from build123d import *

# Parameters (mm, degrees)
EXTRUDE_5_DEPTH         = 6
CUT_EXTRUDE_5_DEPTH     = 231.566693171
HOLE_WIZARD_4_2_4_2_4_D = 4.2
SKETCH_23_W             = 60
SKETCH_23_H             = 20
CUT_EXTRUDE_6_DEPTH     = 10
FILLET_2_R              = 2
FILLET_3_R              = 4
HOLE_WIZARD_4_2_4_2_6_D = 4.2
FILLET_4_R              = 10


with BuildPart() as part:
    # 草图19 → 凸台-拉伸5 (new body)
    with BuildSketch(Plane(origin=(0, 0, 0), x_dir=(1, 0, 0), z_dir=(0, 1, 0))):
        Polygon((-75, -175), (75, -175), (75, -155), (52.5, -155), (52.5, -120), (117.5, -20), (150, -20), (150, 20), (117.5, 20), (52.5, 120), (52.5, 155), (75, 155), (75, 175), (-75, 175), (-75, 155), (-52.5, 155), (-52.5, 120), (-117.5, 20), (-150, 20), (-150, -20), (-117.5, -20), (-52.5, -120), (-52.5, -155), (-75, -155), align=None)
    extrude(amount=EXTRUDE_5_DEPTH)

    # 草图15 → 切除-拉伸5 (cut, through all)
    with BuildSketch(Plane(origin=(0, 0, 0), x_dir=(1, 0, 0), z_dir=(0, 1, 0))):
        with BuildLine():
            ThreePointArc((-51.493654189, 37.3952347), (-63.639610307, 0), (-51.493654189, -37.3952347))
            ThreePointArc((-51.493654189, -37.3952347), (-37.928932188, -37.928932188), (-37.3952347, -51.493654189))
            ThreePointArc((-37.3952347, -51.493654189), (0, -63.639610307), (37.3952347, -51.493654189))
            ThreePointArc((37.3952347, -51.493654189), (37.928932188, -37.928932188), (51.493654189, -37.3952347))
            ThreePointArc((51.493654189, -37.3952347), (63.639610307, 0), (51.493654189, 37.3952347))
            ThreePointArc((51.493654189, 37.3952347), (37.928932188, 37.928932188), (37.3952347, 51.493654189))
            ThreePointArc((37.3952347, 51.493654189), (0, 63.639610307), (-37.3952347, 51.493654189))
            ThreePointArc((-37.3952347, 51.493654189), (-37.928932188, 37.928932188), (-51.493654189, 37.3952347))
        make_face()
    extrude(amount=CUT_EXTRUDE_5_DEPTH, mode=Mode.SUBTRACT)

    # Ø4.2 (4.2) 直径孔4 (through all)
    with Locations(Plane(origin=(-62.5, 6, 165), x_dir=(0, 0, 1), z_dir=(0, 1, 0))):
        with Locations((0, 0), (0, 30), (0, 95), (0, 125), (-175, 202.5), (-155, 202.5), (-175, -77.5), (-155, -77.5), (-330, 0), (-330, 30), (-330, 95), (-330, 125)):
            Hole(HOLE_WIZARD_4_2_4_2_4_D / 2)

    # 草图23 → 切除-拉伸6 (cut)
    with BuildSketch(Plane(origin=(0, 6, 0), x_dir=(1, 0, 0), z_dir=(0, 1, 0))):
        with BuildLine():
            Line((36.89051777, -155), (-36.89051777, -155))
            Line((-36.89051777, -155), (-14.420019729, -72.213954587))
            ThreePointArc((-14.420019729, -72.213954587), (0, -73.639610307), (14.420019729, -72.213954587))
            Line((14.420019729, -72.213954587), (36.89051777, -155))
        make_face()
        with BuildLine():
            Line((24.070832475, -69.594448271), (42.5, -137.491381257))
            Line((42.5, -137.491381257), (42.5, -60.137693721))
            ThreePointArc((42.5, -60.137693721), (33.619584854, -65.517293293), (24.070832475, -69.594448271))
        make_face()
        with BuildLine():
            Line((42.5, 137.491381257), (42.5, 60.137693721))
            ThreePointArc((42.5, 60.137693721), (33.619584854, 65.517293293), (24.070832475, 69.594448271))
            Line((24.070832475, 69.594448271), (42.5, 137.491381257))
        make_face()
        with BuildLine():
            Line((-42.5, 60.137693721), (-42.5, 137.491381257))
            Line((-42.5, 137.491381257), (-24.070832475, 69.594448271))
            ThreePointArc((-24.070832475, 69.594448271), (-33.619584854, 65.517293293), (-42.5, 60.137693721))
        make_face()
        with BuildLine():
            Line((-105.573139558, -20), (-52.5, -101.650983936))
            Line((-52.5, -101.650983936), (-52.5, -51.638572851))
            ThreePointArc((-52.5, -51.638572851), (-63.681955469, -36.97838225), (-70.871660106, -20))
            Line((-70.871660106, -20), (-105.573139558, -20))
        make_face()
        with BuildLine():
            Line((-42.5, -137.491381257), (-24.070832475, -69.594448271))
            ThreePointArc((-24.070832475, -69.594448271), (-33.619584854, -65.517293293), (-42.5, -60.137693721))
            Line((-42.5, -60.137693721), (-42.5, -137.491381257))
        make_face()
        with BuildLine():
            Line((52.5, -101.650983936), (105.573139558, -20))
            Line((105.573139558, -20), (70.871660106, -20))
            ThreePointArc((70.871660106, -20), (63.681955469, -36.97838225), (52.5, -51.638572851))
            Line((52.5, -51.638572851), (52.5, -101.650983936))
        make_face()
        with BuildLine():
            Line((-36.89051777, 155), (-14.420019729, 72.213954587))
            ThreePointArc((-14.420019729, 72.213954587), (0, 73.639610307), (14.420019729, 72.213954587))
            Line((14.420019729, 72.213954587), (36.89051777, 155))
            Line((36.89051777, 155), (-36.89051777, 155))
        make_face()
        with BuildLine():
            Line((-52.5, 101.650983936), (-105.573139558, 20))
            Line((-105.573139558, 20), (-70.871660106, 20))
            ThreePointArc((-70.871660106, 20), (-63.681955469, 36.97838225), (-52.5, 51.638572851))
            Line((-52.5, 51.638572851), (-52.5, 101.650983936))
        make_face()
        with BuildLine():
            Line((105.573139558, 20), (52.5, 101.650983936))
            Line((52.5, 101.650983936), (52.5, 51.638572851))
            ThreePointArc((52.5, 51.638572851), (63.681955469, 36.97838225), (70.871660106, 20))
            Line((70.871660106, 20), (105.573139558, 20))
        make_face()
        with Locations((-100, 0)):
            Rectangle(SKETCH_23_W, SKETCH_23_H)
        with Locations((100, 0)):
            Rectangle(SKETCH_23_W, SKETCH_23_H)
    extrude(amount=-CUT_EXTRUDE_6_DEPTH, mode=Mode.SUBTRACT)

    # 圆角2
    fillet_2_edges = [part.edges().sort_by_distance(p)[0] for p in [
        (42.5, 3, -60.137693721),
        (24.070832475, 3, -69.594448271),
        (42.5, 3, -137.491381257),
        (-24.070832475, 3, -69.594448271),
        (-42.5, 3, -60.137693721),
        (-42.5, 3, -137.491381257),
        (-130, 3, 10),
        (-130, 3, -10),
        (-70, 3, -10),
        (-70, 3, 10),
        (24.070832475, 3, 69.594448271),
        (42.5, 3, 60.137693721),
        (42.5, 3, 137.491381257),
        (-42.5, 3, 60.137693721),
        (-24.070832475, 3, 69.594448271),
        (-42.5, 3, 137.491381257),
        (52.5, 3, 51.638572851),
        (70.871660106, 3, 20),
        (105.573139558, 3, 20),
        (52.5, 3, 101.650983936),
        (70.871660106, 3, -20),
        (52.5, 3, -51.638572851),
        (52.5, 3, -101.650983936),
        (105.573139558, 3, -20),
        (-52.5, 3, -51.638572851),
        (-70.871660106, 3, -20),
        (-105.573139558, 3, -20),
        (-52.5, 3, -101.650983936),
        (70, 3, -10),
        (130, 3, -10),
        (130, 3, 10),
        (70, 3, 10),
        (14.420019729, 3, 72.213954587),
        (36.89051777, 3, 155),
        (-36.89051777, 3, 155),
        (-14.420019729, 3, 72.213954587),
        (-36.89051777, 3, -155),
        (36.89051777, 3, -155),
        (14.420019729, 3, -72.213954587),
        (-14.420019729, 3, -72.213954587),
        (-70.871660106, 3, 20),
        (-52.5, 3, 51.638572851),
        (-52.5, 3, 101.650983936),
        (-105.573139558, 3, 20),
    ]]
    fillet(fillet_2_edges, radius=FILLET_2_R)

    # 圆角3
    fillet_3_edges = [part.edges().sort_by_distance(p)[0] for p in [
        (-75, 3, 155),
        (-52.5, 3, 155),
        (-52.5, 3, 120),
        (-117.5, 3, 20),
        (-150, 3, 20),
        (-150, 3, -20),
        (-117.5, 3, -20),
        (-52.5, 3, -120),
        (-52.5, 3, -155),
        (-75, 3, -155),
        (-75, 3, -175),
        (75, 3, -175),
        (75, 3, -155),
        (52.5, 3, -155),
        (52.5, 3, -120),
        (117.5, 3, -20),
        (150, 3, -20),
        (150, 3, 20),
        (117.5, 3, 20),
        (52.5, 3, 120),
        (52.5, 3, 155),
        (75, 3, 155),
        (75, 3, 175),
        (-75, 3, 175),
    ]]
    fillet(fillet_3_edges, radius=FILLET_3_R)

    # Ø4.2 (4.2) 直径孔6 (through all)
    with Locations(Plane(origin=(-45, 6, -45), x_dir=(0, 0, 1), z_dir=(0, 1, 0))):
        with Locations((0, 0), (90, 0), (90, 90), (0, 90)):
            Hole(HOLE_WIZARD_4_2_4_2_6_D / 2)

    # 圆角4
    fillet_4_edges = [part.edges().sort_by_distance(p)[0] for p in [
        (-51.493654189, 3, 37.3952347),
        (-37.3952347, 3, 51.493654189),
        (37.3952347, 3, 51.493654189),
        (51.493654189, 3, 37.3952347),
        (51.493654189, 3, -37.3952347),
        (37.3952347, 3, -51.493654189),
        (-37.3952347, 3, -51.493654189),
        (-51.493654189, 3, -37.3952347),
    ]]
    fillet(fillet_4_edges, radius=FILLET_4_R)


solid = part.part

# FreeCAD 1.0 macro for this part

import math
import FreeCAD as App
import Part
import Sketcher

V = App.Vector


def edges_at(feature, points):
    """Names of the edges that pass closest to the given points."""
    edges = feature.Shape.Edges
    near = lambda p: min(range(len(edges)), key=lambda i: edges[i].distToShape(Part.Vertex(*p))[0])
    return sorted({f"Edge{near(p) + 1}" for p in points})


def add_polygon(sketch, points):
    """Adds a closed chain of lines whose ends are joined by coincident constraints."""
    first, n = sketch.GeometryCount, len(points)
    for a, b in zip(points, points[1:] + points[:1]):
        sketch.addGeometry(Part.LineSegment(App.Vector(*a, 0), App.Vector(*b, 0)), False)
    for i in range(n):
        sketch.addConstraint(Sketcher.Constraint("Coincident", first + i, 2, first + (i + 1) % n, 1))

doc = App.newDocument("Part")
body = doc.addObject("PartDesign::Body", "Body")

sketch1 = body.newObject("Sketcher::SketchObject", "Sketch")
sketch1.AttachmentSupport = (doc.getObject("XZ_Plane"), [""])
sketch1.MapMode = "FlatFace"
add_polygon(sketch1, [(-75, 175), (75, 175), (75, 155), (52, 155), (52, 120), (118, 20), (150, 20), (150, -20), (118, -20), (52, -120), (52, -155), (75, -155), (75, -175), (-75, -175), (-75, -155), (-52, -155), (-52, -120), (-118, -20), (-150, -20), (-150, 20), (-118, 20), (-52, 120), (-52, 155), (-75, 155)])
sketch1.addConstraint([
    Sketcher.Constraint("Horizontal", 0),
    Sketcher.Constraint("Vertical", 1),
    Sketcher.Constraint("Horizontal", 2),
    Sketcher.Constraint("Vertical", 3),
    Sketcher.Constraint("Horizontal", 5),
    Sketcher.Constraint("Vertical", 6),
    Sketcher.Constraint("Horizontal", 7),
    Sketcher.Constraint("Vertical", 9),
    Sketcher.Constraint("Horizontal", 10),
    Sketcher.Constraint("Vertical", 11),
    Sketcher.Constraint("Horizontal", 12),
    Sketcher.Constraint("Vertical", 13),
    Sketcher.Constraint("Horizontal", 14),
    Sketcher.Constraint("Vertical", 15),
    Sketcher.Constraint("Horizontal", 17),
    Sketcher.Constraint("Vertical", 18),
    Sketcher.Constraint("Horizontal", 19),
    Sketcher.Constraint("Vertical", 21),
    Sketcher.Constraint("Horizontal", 22),
    Sketcher.Constraint("Vertical", 23),
    Sketcher.Constraint("Symmetric", 0, 2, 12, 2, -1, 1),
    Sketcher.Constraint("Symmetric", 2, 2, 14, 2, -1, 1),
    Sketcher.Constraint("Symmetric", 4, 2, 16, 2, -1, 1),
    Sketcher.Constraint("Symmetric", 6, 2, 18, 2, -1, 1),
    Sketcher.Constraint("Symmetric", 8, 2, 20, 2, -1, 1),
    Sketcher.Constraint("Symmetric", 10, 2, 22, 2, -1, 1),
    Sketcher.Constraint("Symmetric", 10, 2, 13, 2, -2),
    Sketcher.Constraint("Symmetric", 8, 2, 15, 2, -2),
    Sketcher.Constraint("Symmetric", 7, 2, 16, 2, -2),
    Sketcher.Constraint("Parallel", 4, 16),
    Sketcher.Constraint("Parallel", 8, 20),
    Sketcher.Constraint("DistanceX", 0, 1, 0, 2, 150.0),
    Sketcher.Constraint("DistanceY", 1, 2, 1, 1, 20.0),
    Sketcher.Constraint("DistanceY", 3, 2, 3, 1, 35.0),
    Sketcher.Constraint("DistanceY", 6, 2, 6, 1, 40.0),
    Sketcher.Constraint("DistanceX", 2, 2, 2, 1, 22.5),
    Sketcher.Constraint("DistanceX", 5, 1, 5, 2, 32.5),
    Sketcher.Constraint("DistanceY", -1, 1, 0, 2, 175.0),
    Sketcher.Constraint("DistanceX", -1, 1, 5, 2, 150.0),
])
pad1 = body.newObject("PartDesign::Pad", "Pad")
pad1.Profile = sketch1
pad1.Length = 6
pad1.Reversed = True

sketch2 = body.newObject("Sketcher::SketchObject", "Sketch001")
sketch2.AttachmentSupport = (doc.getObject("XZ_Plane"), [""])
sketch2.MapMode = "FlatFace"
sketch2.addGeometry([
    Part.ArcOfCircle(Part.Circle(V(0, 0, 0), V(0, 0, 1), 64), math.radians(144), math.radians(216)),
    Part.ArcOfCircle(Part.Circle(V(-45, 45, 0), V(0, 0, 1), 10), math.radians(-130), math.radians(40)),
    Part.ArcOfCircle(Part.Circle(V(0, 0, 0), V(0, 0, 1), 64), math.radians(54), math.radians(126)),
    Part.ArcOfCircle(Part.Circle(V(45, 45, 0), V(0, 0, 1), 10), math.radians(140), math.radians(310)),
    Part.ArcOfCircle(Part.Circle(V(0, 0, 0), V(0, 0, 1), 64), math.radians(-36), math.radians(36)),
    Part.ArcOfCircle(Part.Circle(V(45, -45, 0), V(0, 0, 1), 10), math.radians(50), math.radians(220)),
    Part.ArcOfCircle(Part.Circle(V(0, 0, 0), V(0, 0, 1), 64), math.radians(-126), math.radians(-54)),
    Part.ArcOfCircle(Part.Circle(V(-45, -45, 0), V(0, 0, 1), 10), math.radians(-40), math.radians(130)),
], False)
sketch2.addConstraint([
    Sketcher.Constraint("Coincident", 0, 1, 1, 1),
    Sketcher.Constraint("Coincident", 1, 2, 2, 2),
    Sketcher.Constraint("Coincident", 2, 1, 3, 1),
    Sketcher.Constraint("Coincident", 3, 2, 4, 2),
    Sketcher.Constraint("Coincident", 4, 1, 5, 1),
    Sketcher.Constraint("Coincident", 5, 2, 6, 2),
    Sketcher.Constraint("Coincident", 6, 1, 7, 1),
    Sketcher.Constraint("Coincident", 7, 2, 0, 2),
    Sketcher.Constraint("Coincident", 0, 3, -1, 1),
    Sketcher.Constraint("Coincident", 2, 3, -1, 1),
    Sketcher.Constraint("Coincident", 4, 3, -1, 1),
    Sketcher.Constraint("Coincident", 6, 3, -1, 1),
    Sketcher.Constraint("Equal", 0, 2),
    Sketcher.Constraint("Equal", 1, 3),
    Sketcher.Constraint("Equal", 2, 4),
    Sketcher.Constraint("Equal", 3, 5),
    Sketcher.Constraint("Equal", 4, 6),
    Sketcher.Constraint("Equal", 5, 7),
    Sketcher.Constraint("Symmetric", 1, 3, 5, 3, -1, 1),
    Sketcher.Constraint("Symmetric", 3, 3, 7, 3, -1, 1),
    Sketcher.Constraint("Symmetric", 1, 3, 3, 3, -2),
    Sketcher.Constraint("Radius", 1, 10.0),
    Sketcher.Constraint("DistanceX", 1, 3, -1, 1, 45.0),
    Sketcher.Constraint("DistanceY", -1, 1, 1, 3, 45.0),
    Sketcher.Constraint("Radius", 0, 63.63961),
])
pocket1 = body.newObject("PartDesign::Pocket", "Pocket")
pocket1.Profile = sketch2
pocket1.Type = "ThroughAll"

sketch3 = body.newObject("Sketcher::SketchObject", "Sketch002")
sketch3.AttachmentSupport = (doc.getObject("XZ_Plane"), [""])
sketch3.MapMode = "FlatFace"
sketch3.AttachmentOffset = App.Placement(V(0, 0, -6), App.Rotation())
sketch3.addGeometry([
    Part.Circle(V(-62.5, 165, 0), V(0, 0, 1), 2.1),
    Part.Circle(V(-32.5, 165, 0), V(0, 0, 1), 2.1),
    Part.Circle(V(32.5, 165, 0), V(0, 0, 1), 2.1),
    Part.Circle(V(62.5, 165, 0), V(0, 0, 1), 2.1),
    Part.Circle(V(140, -10, 0), V(0, 0, 1), 2.1),
    Part.Circle(V(140, 10, 0), V(0, 0, 1), 2.1),
    Part.Circle(V(-140, -10, 0), V(0, 0, 1), 2.1),
    Part.Circle(V(-140, 10, 0), V(0, 0, 1), 2.1),
    Part.Circle(V(-62.5, -165, 0), V(0, 0, 1), 2.1),
    Part.Circle(V(-32.5, -165, 0), V(0, 0, 1), 2.1),
    Part.Circle(V(32.5, -165, 0), V(0, 0, 1), 2.1),
    Part.Circle(V(62.5, -165, 0), V(0, 0, 1), 2.1),
], False)
sketch3.addConstraint([
    Sketcher.Constraint("Equal", 0, 1),
    Sketcher.Constraint("Equal", 1, 2),
    Sketcher.Constraint("Equal", 2, 3),
    Sketcher.Constraint("Equal", 3, 4),
    Sketcher.Constraint("Equal", 4, 5),
    Sketcher.Constraint("Equal", 5, 6),
    Sketcher.Constraint("Equal", 6, 7),
    Sketcher.Constraint("Equal", 7, 8),
    Sketcher.Constraint("Equal", 8, 9),
    Sketcher.Constraint("Equal", 9, 10),
    Sketcher.Constraint("Equal", 10, 11),
    Sketcher.Constraint("Symmetric", 5, 3, 6, 3, -1, 1),
    Sketcher.Constraint("Symmetric", 4, 3, 7, 3, -1, 1),
    Sketcher.Constraint("Symmetric", 3, 3, 8, 3, -1, 1),
    Sketcher.Constraint("Symmetric", 2, 3, 9, 3, -1, 1),
    Sketcher.Constraint("Symmetric", 1, 3, 10, 3, -1, 1),
    Sketcher.Constraint("Symmetric", 0, 3, 11, 3, -1, 1),
    Sketcher.Constraint("Symmetric", 1, 3, 2, 3, -2),
    Sketcher.Constraint("Symmetric", 0, 3, 3, 3, -2),
    Sketcher.Constraint("Symmetric", 4, 3, 6, 3, -2),
    Sketcher.Constraint("Horizontal", 0, 3, 1, 3),
    Sketcher.Constraint("Diameter", 0, 4.2),
    Sketcher.Constraint("DistanceY", -1, 1, 0, 3, 165.0),
    Sketcher.Constraint("DistanceX", -1, 1, 4, 3, 140.0),
    Sketcher.Constraint("DistanceY", 4, 3, -1, 1, 10.0),
    Sketcher.Constraint("DistanceX", 0, 3, 1, 3, 30.0),
    Sketcher.Constraint("DistanceX", 1, 3, 2, 3, 65.0),
])
doc.recompute()
hole = body.newObject("PartDesign::Hole", "Hole")
hole.Profile = sketch3
hole.ThreadType = "None"
hole.Diameter = 4.2
hole.DepthType = "ThroughAll"
hole.Reversed = True

sketch4 = body.newObject("Sketcher::SketchObject", "Sketch003")
sketch4.AttachmentSupport = (doc.getObject("XZ_Plane"), [""])
sketch4.MapMode = "FlatFace"
sketch4.AttachmentOffset = App.Placement(V(0, 0, -6), App.Rotation())
sketch4.addGeometry(Part.LineSegment(V(-37, 155, 0), V(37, 155, 0)), False)
sketch4.addGeometry(Part.LineSegment(V(37, 155, 0), V(14, 72, 0)), False)
sketch4.addGeometry(Part.ArcOfCircle(Part.Circle(V(0, 0, 0), V(0, 0, 1), 74), math.radians(79), math.radians(101)), False)
sketch4.addGeometry(Part.LineSegment(V(-14, 72, 0), V(-37, 155, 0)), False)
sketch4.addGeometry(Part.LineSegment(V(24, 70, 0), V(42, 137, 0)), False)
sketch4.addGeometry(Part.LineSegment(V(42, 137, 0), V(42, 60, 0)), False)
sketch4.addGeometry(Part.ArcOfCircle(Part.Circle(V(0, 0, 0), V(0, 0, 1), 74), math.radians(54.75), math.radians(70.92)), False)
sketch4.addGeometry(Part.LineSegment(V(42, -60, 0), V(42, -137, 0)), False)
sketch4.addGeometry(Part.LineSegment(V(42, -137, 0), V(24, -70, 0)), False)
sketch4.addGeometry(Part.ArcOfCircle(Part.Circle(V(0, 0, 0), V(0, 0, 1), 74), math.radians(-70.92), math.radians(-54.75)), False)
sketch4.addGeometry(Part.LineSegment(V(-42, -137, 0), V(-42, -60, 0)), False)
sketch4.addGeometry(Part.ArcOfCircle(Part.Circle(V(0, 0, 0), V(0, 0, 1), 74), math.radians(-125.25), math.radians(-109.08)), False)
sketch4.addGeometry(Part.LineSegment(V(-24, -70, 0), V(-42, -137, 0)), False)
sketch4.addGeometry(Part.LineSegment(V(-106, 20, 0), V(-52, 102, 0)), False)
sketch4.addGeometry(Part.LineSegment(V(-52, 102, 0), V(-52, 52, 0)), False)
sketch4.addGeometry(Part.ArcOfCircle(Part.Circle(V(0, 0, 0), V(0, 0, 1), 74), math.radians(135), math.radians(164)), False)
sketch4.addGeometry(Part.LineSegment(V(-71, 20, 0), V(-106, 20, 0)), False)
sketch4.addGeometry(Part.LineSegment(V(-42, 137, 0), V(-24, 70, 0)), False)
sketch4.addGeometry(Part.ArcOfCircle(Part.Circle(V(0, 0, 0), V(0, 0, 1), 74), math.radians(109.08), math.radians(125.25)), False)
sketch4.addGeometry(Part.LineSegment(V(-42, 60, 0), V(-42, 137, 0)), False)
sketch4.addGeometry(Part.LineSegment(V(52, 102, 0), V(106, 20, 0)), False)
sketch4.addGeometry(Part.LineSegment(V(106, 20, 0), V(71, 20, 0)), False)
sketch4.addGeometry(Part.ArcOfCircle(Part.Circle(V(0, 0, 0), V(0, 0, 1), 74), math.radians(16), math.radians(45)), False)
sketch4.addGeometry(Part.LineSegment(V(52, 52, 0), V(52, 102, 0)), False)
sketch4.addGeometry(Part.LineSegment(V(-37, -155, 0), V(-14, -72, 0)), False)
sketch4.addGeometry(Part.ArcOfCircle(Part.Circle(V(0, 0, 0), V(0, 0, 1), 74), math.radians(-101), math.radians(-79)), False)
sketch4.addGeometry(Part.LineSegment(V(14, -72, 0), V(37, -155, 0)), False)
sketch4.addGeometry(Part.LineSegment(V(37, -155, 0), V(-37, -155, 0)), False)
sketch4.addGeometry(Part.LineSegment(V(-52, -102, 0), V(-106, -20, 0)), False)
sketch4.addGeometry(Part.LineSegment(V(-106, -20, 0), V(-71, -20, 0)), False)
sketch4.addGeometry(Part.ArcOfCircle(Part.Circle(V(0, 0, 0), V(0, 0, 1), 74), math.radians(-164), math.radians(-135)), False)
sketch4.addGeometry(Part.LineSegment(V(-52, -52, 0), V(-52, -102, 0)), False)
sketch4.addGeometry(Part.LineSegment(V(106, -20, 0), V(52, -102, 0)), False)
sketch4.addGeometry(Part.LineSegment(V(52, -102, 0), V(52, -52, 0)), False)
sketch4.addGeometry(Part.ArcOfCircle(Part.Circle(V(0, 0, 0), V(0, 0, 1), 74), math.radians(-45), math.radians(-16)), False)
sketch4.addGeometry(Part.LineSegment(V(71, -20, 0), V(106, -20, 0)), False)
add_polygon(sketch4, [(-130, -10), (-130, 10), (-70, 10), (-70, -10)])
add_polygon(sketch4, [(70, -10), (70, 10), (130, 10), (130, -10)])
sketch4.addConstraint([
    Sketcher.Constraint("Coincident", 0, 2, 1, 1),
    Sketcher.Constraint("Coincident", 1, 2, 2, 1),
    Sketcher.Constraint("Coincident", 2, 2, 3, 1),
    Sketcher.Constraint("Coincident", 3, 2, 0, 1),
    Sketcher.Constraint("Coincident", 4, 2, 5, 1),
    Sketcher.Constraint("Coincident", 5, 2, 6, 1),
    Sketcher.Constraint("Coincident", 6, 2, 4, 1),
    Sketcher.Constraint("Coincident", 7, 2, 8, 1),
    Sketcher.Constraint("Coincident", 8, 2, 9, 1),
    Sketcher.Constraint("Coincident", 9, 2, 7, 1),
    Sketcher.Constraint("Coincident", 10, 2, 11, 1),
    Sketcher.Constraint("Coincident", 11, 2, 12, 1),
    Sketcher.Constraint("Coincident", 12, 2, 10, 1),
    Sketcher.Constraint("Coincident", 13, 2, 14, 1),
    Sketcher.Constraint("Coincident", 14, 2, 15, 1),
    Sketcher.Constraint("Coincident", 15, 2, 16, 1),
    Sketcher.Constraint("Coincident", 16, 2, 13, 1),
    Sketcher.Constraint("Coincident", 17, 2, 18, 1),
    Sketcher.Constraint("Coincident", 18, 2, 19, 1),
    Sketcher.Constraint("Coincident", 19, 2, 17, 1),
    Sketcher.Constraint("Coincident", 20, 2, 21, 1),
    Sketcher.Constraint("Coincident", 21, 2, 22, 1),
    Sketcher.Constraint("Coincident", 22, 2, 23, 1),
    Sketcher.Constraint("Coincident", 23, 2, 20, 1),
    Sketcher.Constraint("Coincident", 24, 2, 25, 1),
    Sketcher.Constraint("Coincident", 25, 2, 26, 1),
    Sketcher.Constraint("Coincident", 26, 2, 27, 1),
    Sketcher.Constraint("Coincident", 27, 2, 24, 1),
    Sketcher.Constraint("Coincident", 28, 2, 29, 1),
    Sketcher.Constraint("Coincident", 29, 2, 30, 1),
    Sketcher.Constraint("Coincident", 30, 2, 31, 1),
    Sketcher.Constraint("Coincident", 31, 2, 28, 1),
    Sketcher.Constraint("Coincident", 32, 2, 33, 1),
    Sketcher.Constraint("Coincident", 33, 2, 34, 1),
    Sketcher.Constraint("Coincident", 34, 2, 35, 1),
    Sketcher.Constraint("Coincident", 35, 2, 32, 1),
    Sketcher.Constraint("Horizontal", 0),
    Sketcher.Constraint("Vertical", 5),
    Sketcher.Constraint("Vertical", 7),
    Sketcher.Constraint("Vertical", 10),
    Sketcher.Constraint("Vertical", 14),
    Sketcher.Constraint("Horizontal", 16),
    Sketcher.Constraint("Vertical", 19),
    Sketcher.Constraint("Horizontal", 21),
    Sketcher.Constraint("Vertical", 23),
    Sketcher.Constraint("Horizontal", 27),
    Sketcher.Constraint("Horizontal", 29),
    Sketcher.Constraint("Vertical", 31),
    Sketcher.Constraint("Vertical", 33),
    Sketcher.Constraint("Horizontal", 35),
    Sketcher.Constraint("Vertical", 36),
    Sketcher.Constraint("Horizontal", 37),
    Sketcher.Constraint("Vertical", 38),
    Sketcher.Constraint("Horizontal", 39),
    Sketcher.Constraint("Vertical", 40),
    Sketcher.Constraint("Horizontal", 41),
    Sketcher.Constraint("Vertical", 42),
    Sketcher.Constraint("Horizontal", 43),
    Sketcher.Constraint("Coincident", 2, 3, -1, 1),
    Sketcher.Constraint("Coincident", 6, 3, -1, 1),
    Sketcher.Constraint("Coincident", 9, 3, -1, 1),
    Sketcher.Constraint("Coincident", 11, 3, -1, 1),
    Sketcher.Constraint("Coincident", 15, 3, -1, 1),
    Sketcher.Constraint("Coincident", 18, 3, -1, 1),
    Sketcher.Constraint("Coincident", 22, 3, -1, 1),
    Sketcher.Constraint("Coincident", 25, 3, -1, 1),
    Sketcher.Constraint("Coincident", 30, 3, -1, 1),
    Sketcher.Constraint("Coincident", 34, 3, -1, 1),
    Sketcher.Constraint("Equal", 2, 6),
    Sketcher.Constraint("Equal", 6, 9),
    Sketcher.Constraint("Equal", 9, 11),
    Sketcher.Constraint("Equal", 11, 15),
    Sketcher.Constraint("Equal", 15, 18),
    Sketcher.Constraint("Equal", 18, 22),
    Sketcher.Constraint("Equal", 22, 25),
    Sketcher.Constraint("Equal", 25, 30),
    Sketcher.Constraint("Equal", 30, 34),
    Sketcher.Constraint("Symmetric", 4, 2, 12, 2, -1, 1),
    Sketcher.Constraint("Symmetric", 7, 2, 19, 2, -1, 1),
    Sketcher.Constraint("Symmetric", 3, 2, 26, 2, -1, 1),
    Sketcher.Constraint("Symmetric", 20, 2, 28, 2, -1, 1),
    Sketcher.Constraint("Symmetric", 23, 2, 31, 2, -1, 1),
    Sketcher.Constraint("Symmetric", 13, 2, 32, 2, -1, 1),
    Sketcher.Constraint("Symmetric", 16, 2, 35, 2, -1, 1),
    Sketcher.Constraint("Symmetric", 38, 2, 40, 2, -1, 1),
    Sketcher.Constraint("Symmetric", 36, 2, 42, 2, -1, 1),
    Sketcher.Constraint("Symmetric", 7, 2, 12, 2, -2),
    Sketcher.Constraint("Symmetric", 16, 2, 20, 2, -2),
    Sketcher.Constraint("Symmetric", 13, 2, 23, 2, -2),
    Sketcher.Constraint("Parallel", 1, 4),
    Sketcher.Constraint("Parallel", 3, 8),
    Sketcher.Constraint("Parallel", 4, 12),
    Sketcher.Constraint("Parallel", 8, 17),
    Sketcher.Constraint("Parallel", 12, 24),
    Sketcher.Constraint("Parallel", 17, 26),
    Sketcher.Constraint("Horizontal", 1, 2, 2, 2),
    Sketcher.Constraint("Horizontal", 8, 2, 11, 2),
    Sketcher.Constraint("Horizontal", 24, 2, 25, 2),
    Sketcher.Constraint("Horizontal", 37, 2, 40, 2),
    Sketcher.Constraint("DistanceX", 37, 1, 37, 2, 60.0),
    Sketcher.Constraint("DistanceY", 36, 1, 36, 2, 20.0),
    Sketcher.Constraint("DistanceY", -1, 1, 0, 2, 155.0),
    Sketcher.Constraint("DistanceY", -1, 1, 15, 2, 20.0),
    Sketcher.Constraint("DistanceX", 36, 2, -1, 1, 130.0),
    Sketcher.Constraint("DistanceX", 12, 2, 7, 2, 85.0),
    Sketcher.Constraint("DistanceX", 13, 2, 4, 2, 95.0),
    Sketcher.Constraint("Radius", 2, 73.63961),
    Sketcher.Constraint("DistanceX", 16, 2, 16, 1, 34.701479),
    Sketcher.Constraint("DistanceY", 14, 2, 14, 1, 50.012411),
    Sketcher.Constraint("DistanceX", 3, 2, 2, 2, 22.470498),
    Sketcher.Constraint("Distance", 4, 70.353591),
    Sketcher.Constraint("DistanceX", 0, 1, 0, 2, 73.781036),
])
pocket2 = body.newObject("PartDesign::Pocket", "Pocket001")
pocket2.Profile = sketch4
pocket2.Length = 10
pocket2.Reversed = True
doc.recompute()

fillet = body.newObject("PartDesign::Fillet", "Fillet")
fillet.Base = (pocket2, edges_at(pocket2, [
    (42.5, 3, -60.138),
    (24.071, 3, -69.594),
    (42.5, 3, -137.491),
    (-24.071, 3, -69.594),
    (-42.5, 3, -60.138),
    (-42.5, 3, -137.491),
    (-130, 3, 10),
    (-130, 3, -10),
    (-70, 3, -10),
    (-70, 3, 10),
    (24.071, 3, 69.594),
    (42.5, 3, 60.138),
    (42.5, 3, 137.491),
    (-42.5, 3, 60.138),
    (-24.071, 3, 69.594),
    (-42.5, 3, 137.491),
    (52.5, 3, 51.639),
    (70.872, 3, 20),
    (105.573, 3, 20),
    (52.5, 3, 101.651),
    (70.872, 3, -20),
    (52.5, 3, -51.639),
    (52.5, 3, -101.651),
    (105.573, 3, -20),
    (-52.5, 3, -51.639),
    (-70.872, 3, -20),
    (-105.573, 3, -20),
    (-52.5, 3, -101.651),
    (70, 3, -10),
    (130, 3, -10),
    (130, 3, 10),
    (70, 3, 10),
    (14.42, 3, 72.214),
    (36.891, 3, 155),
    (-36.891, 3, 155),
    (-14.42, 3, 72.214),
    (-36.891, 3, -155),
    (36.891, 3, -155),
    (14.42, 3, -72.214),
    (-14.42, 3, -72.214),
    (-70.872, 3, 20),
    (-52.5, 3, 51.639),
    (-52.5, 3, 101.651),
    (-105.573, 3, 20),
]))
fillet.Radius = 2
doc.recompute()

fillet2 = body.newObject("PartDesign::Fillet", "Fillet001")
fillet2.Base = (fillet, edges_at(fillet, [
    (-75, 3, 155),
    (-52.5, 3, 155),
    (-52.5, 3, 120),
    (-117.5, 3, 20),
    (-150, 3, 20),
    (-150, 3, -20),
    (-117.5, 3, -20),
    (-52.5, 3, -120),
    (-52.5, 3, -155),
    (-75, 3, -155),
    (-75, 3, -175),
    (75, 3, -175),
    (75, 3, -155),
    (52.5, 3, -155),
    (52.5, 3, -120),
    (117.5, 3, -20),
    (150, 3, -20),
    (150, 3, 20),
    (117.5, 3, 20),
    (52.5, 3, 120),
    (52.5, 3, 155),
    (75, 3, 155),
    (75, 3, 175),
    (-75, 3, 175),
]))
fillet2.Radius = 4

sketch5 = body.newObject("Sketcher::SketchObject", "Sketch004")
sketch5.AttachmentSupport = (doc.getObject("XZ_Plane"), [""])
sketch5.MapMode = "FlatFace"
sketch5.AttachmentOffset = App.Placement(V(0, 0, -6), App.Rotation())
sketch5.addGeometry([
    Part.Circle(V(-45, -45, 0), V(0, 0, 1), 2.1),
    Part.Circle(V(-45, 45, 0), V(0, 0, 1), 2.1),
    Part.Circle(V(45, 45, 0), V(0, 0, 1), 2.1),
    Part.Circle(V(45, -45, 0), V(0, 0, 1), 2.1),
], False)
sketch5.addConstraint([
    Sketcher.Constraint("Equal", 0, 1),
    Sketcher.Constraint("Equal", 1, 2),
    Sketcher.Constraint("Equal", 2, 3),
    Sketcher.Constraint("Symmetric", 0, 3, 2, 3, -1, 1),
    Sketcher.Constraint("Symmetric", 1, 3, 3, 3, -1, 1),
    Sketcher.Constraint("Symmetric", 1, 3, 2, 3, -2),
    Sketcher.Constraint("Diameter", 0, 4.2),
    Sketcher.Constraint("DistanceX", 0, 3, -1, 1, 45.0),
    Sketcher.Constraint("DistanceY", 0, 3, -1, 1, 45.0),
])
doc.recompute()
hole2 = body.newObject("PartDesign::Hole", "Hole001")
hole2.Profile = sketch5
hole2.ThreadType = "None"
hole2.Diameter = 4.2
hole2.DepthType = "ThroughAll"
hole2.Reversed = True
doc.recompute()

fillet3 = body.newObject("PartDesign::Fillet", "Fillet002")
fillet3.Base = (hole2, edges_at(hole2, [
    (-51.494, 3, 37.395),
    (-37.395, 3, 51.494),
    (37.395, 3, 51.494),
    (51.494, 3, 37.395),
    (51.494, 3, -37.395),
    (37.395, 3, -51.494),
    (-37.395, 3, -51.494),
    (-51.494, 3, -37.395),
]))
fillet3.Radius = 10

doc.recompute()
